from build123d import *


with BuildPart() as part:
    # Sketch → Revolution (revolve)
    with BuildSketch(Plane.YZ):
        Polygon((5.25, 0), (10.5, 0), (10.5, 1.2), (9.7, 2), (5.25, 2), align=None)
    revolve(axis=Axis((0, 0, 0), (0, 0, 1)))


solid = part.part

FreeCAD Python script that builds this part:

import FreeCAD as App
import Part
import Sketcher
Q = App.Units.Quantity

doc = App.newDocument("Part")
body = doc.addObject("PartDesign::Body", "Body")

# Sketch on YZ plane
sketch1 = doc.addObject("Sketcher::SketchObject", "Sketch")
body.addObject(sketch1)
sketch1.AttachmentSupport = (doc.YZ_Plane, [""])
sketch1.MapMode = "FlatFace"
sketch1.addGeometry([
    Part.LineSegment(App.Vector(5.2, 0, 0), App.Vector(10.5, 0, 0)),  # 0
    Part.LineSegment(App.Vector(10.5, 0, 0), App.Vector(10.5, 1.2, 0)),  # 1
    Part.LineSegment(App.Vector(10.5, 1.2, 0), App.Vector(9.7, 2, 0)),  # 2
    Part.LineSegment(App.Vector(9.7, 2, 0), App.Vector(5.2, 2, 0)),  # 3
    Part.LineSegment(App.Vector(5.2, 2, 0), App.Vector(5.2, 0, 0)),  # 4
], False)
sketch1.addConstraint([
    Sketcher.Constraint("Coincident", 0, 2, 1, 1),
    Sketcher.Constraint("Coincident", 1, 2, 2, 1),
    Sketcher.Constraint("Coincident", 2, 2, 3, 1),
    Sketcher.Constraint("Coincident", 3, 2, 4, 1),
    Sketcher.Constraint("Coincident", 4, 2, 0, 1),
    Sketcher.Constraint("Horizontal", 0),
    Sketcher.Constraint("Vertical", 1),
    Sketcher.Constraint("Horizontal", 3),
    Sketcher.Constraint("Vertical", 4),
    Sketcher.Constraint("PointOnObject", 0, 2, -1),
    Sketcher.Constraint("DistanceY", 4, 2, 4, 1, Q("2 mm")),
    Sketcher.Constraint("Angle", 2, Q("135 deg")),
    Sketcher.Constraint("DistanceY", 1, 1, 1, 2, Q("1.2 mm")),
    Sketcher.Constraint("DistanceX", 0, 1, 0, 2, Q("5.25 mm")),
    Sketcher.Constraint("DistanceX", -1, 1, 0, 2, Q("10.5 mm")),
])
revolution = doc.addObject("PartDesign::Revolution", "Revolution")
body.addObject(revolution)
revolution.Profile = sketch1
revolution.ReferenceAxis = (sketch1, ["V_Axis"])
revolution.Angle = 360

doc.recompute()
